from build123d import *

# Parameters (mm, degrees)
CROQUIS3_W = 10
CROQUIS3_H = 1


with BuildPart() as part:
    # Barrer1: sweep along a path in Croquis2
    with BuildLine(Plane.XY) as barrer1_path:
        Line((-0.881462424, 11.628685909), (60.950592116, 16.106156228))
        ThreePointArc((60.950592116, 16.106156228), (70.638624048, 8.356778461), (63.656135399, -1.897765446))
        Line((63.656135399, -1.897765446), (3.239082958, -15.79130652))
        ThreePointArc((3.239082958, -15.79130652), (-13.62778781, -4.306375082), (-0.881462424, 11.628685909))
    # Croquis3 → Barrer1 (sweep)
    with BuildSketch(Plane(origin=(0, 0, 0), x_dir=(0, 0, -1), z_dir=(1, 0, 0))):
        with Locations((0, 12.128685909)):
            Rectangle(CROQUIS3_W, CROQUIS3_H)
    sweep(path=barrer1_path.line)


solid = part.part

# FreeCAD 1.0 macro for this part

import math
import FreeCAD as App
import Part
import Sketcher

V = App.Vector
Q = App.Units.Quantity


def add_polygon(sketch, points):
    """Adds a closed chain of lines whose ends are joined by coincident constraints."""
    first, n = sketch.GeometryCount, len(points)
    for a, b in zip(points, points[1:] + points[:1]):
        sketch.addGeometry(Part.LineSegment(App.Vector(*a, 0), App.Vector(*b, 0)), False)
    for i in range(n):
        sketch.addConstraint(Sketcher.Constraint("Coincident", first + i, 2, first + (i + 1) % n, 1))

doc = App.newDocument("Part")
body = doc.addObject("PartDesign::Body", "Body")

# Sketch on YZ plane
sketch1 = body.newObject("Sketcher::SketchObject", "Sketch")
sketch1.AttachmentSupport = (doc.getObject("YZ_Plane"), [""])
sketch1.MapMode = "FlatFace"
add_polygon(sketch1, [(12.6, 5), (11.6, 5), (11.6, -5), (12.6, -5)])  # lines 0-3
sketch1.addConstraint([
    Sketcher.Constraint("Horizontal", 0),
    Sketcher.Constraint("Vertical", 1),
    Sketcher.Constraint("Horizontal", 2),
    Sketcher.Constraint("Vertical", 3),
    Sketcher.Constraint("DistanceX", 0, 2, 0, 1, Q("1 mm")),
    Sketcher.Constraint("DistanceY", 1, 2, 1, 1, Q("10 mm")),
    Sketcher.Constraint("DistanceY", -1, 1, 0, 2, Q("5 mm")),
    Sketcher.Constraint("DistanceX", -1, 1, 0, 2, Q("11.628686 mm")),
])

# Sketch on XY plane
sketch2 = body.newObject("Sketcher::SketchObject", "Sketch001")
sketch2.AttachmentSupport = (doc.getObject("XY_Plane"), [""])
sketch2.MapMode = "FlatFace"
sketch2.addGeometry([
    Part.LineSegment(V(-1, 12, 0), V(61, 16, 0)),
    Part.ArcOfCircle(Part.Circle(V(62, 7, 0), V(0, 0, 1), 9), math.radians(-77), math.radians(94)),
    Part.LineSegment(V(64, -2, 0), V(3, -16, 0)),
    Part.ArcOfCircle(Part.Circle(V(0, -2, 0), V(0, 0, 1), 14), math.radians(94), math.radians(283)),
], False)
sketch2.addConstraint([
    Sketcher.Constraint("Tangent", 0, 2, 1, 2),
    Sketcher.Constraint("Tangent", 1, 1, 2, 1),
    Sketcher.Constraint("Tangent", 2, 2, 3, 2),
    Sketcher.Constraint("Tangent", 3, 1, 0, 1),
    Sketcher.Constraint("Radius", 1, Q("9.13 mm")),
    Sketcher.Constraint("DistanceY", -1, 1, 1, 3, Q("7 mm")),
    Sketcher.Constraint("Radius", 3, Q("13.905 mm")),
    Sketcher.Constraint("DistanceX", -1, 1, 1, 3, Q("61.61 mm")),
    Sketcher.Constraint("DistanceY", 3, 3, -1, 1, Q("2.24 mm")),
    Sketcher.Constraint("DistanceX", 3, 3, 1, 1, Q("63.533319 mm")),
])
doc.recompute()

additivepipe = body.newObject("PartDesign::AdditivePipe", "AdditivePipe")
additivepipe.Profile = sketch1
additivepipe.Spine = (sketch2, ["Edge1", "Edge2", "Edge3", "Edge4"])

doc.recompute()
